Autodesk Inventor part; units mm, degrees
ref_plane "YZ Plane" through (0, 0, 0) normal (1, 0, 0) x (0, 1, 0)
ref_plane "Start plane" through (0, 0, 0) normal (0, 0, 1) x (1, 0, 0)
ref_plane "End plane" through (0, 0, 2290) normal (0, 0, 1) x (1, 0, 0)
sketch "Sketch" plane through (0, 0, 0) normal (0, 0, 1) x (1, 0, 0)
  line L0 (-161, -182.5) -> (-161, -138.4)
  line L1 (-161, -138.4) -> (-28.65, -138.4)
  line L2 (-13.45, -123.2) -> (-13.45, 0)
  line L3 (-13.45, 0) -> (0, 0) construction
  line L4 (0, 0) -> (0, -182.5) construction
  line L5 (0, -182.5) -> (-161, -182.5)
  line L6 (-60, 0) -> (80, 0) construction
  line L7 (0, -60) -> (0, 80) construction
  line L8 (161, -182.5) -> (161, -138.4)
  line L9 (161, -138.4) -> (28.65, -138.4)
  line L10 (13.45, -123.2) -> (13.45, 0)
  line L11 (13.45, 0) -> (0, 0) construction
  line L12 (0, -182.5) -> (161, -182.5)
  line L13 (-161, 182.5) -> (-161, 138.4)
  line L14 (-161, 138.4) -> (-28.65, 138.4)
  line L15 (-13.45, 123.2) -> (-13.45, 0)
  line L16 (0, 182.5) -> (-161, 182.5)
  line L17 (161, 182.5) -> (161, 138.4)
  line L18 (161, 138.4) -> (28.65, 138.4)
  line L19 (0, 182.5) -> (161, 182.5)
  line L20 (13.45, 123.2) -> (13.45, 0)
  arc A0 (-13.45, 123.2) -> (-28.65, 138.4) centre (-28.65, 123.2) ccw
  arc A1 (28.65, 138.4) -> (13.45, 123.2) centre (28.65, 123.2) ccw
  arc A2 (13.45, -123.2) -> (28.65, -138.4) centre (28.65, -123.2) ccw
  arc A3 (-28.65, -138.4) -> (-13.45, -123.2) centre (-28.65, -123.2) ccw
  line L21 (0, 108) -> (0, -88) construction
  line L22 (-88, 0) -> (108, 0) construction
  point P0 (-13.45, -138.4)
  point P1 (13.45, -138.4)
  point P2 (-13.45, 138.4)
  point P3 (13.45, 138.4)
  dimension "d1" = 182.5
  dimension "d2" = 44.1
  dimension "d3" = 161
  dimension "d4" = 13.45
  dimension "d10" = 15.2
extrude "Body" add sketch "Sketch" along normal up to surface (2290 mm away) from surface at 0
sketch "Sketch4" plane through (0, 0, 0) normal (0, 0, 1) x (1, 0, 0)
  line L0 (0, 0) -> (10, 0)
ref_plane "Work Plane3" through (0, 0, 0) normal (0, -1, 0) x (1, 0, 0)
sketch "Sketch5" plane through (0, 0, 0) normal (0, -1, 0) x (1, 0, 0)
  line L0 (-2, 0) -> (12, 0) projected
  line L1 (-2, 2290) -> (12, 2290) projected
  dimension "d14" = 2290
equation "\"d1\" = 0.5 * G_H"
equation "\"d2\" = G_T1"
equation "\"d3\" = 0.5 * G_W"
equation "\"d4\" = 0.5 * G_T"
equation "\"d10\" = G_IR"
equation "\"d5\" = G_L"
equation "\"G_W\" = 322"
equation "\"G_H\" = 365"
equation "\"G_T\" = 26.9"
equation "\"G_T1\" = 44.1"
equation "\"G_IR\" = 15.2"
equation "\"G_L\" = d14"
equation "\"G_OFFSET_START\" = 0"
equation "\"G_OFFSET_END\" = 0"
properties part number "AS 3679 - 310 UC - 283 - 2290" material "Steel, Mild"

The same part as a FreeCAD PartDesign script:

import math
import FreeCAD as App
import Part
import Sketcher

V = App.Vector
Q = App.Units.Quantity

doc = App.newDocument("Part")
body = doc.addObject("PartDesign::Body", "Body")

# Sketch on XY plane
sketch1 = body.newObject("Sketcher::SketchObject", "Sketch")
sketch1.AttachmentSupport = (doc.getObject("XY_Plane"), [""])
sketch1.MapMode = "FlatFace"
sketch1.addGeometry(Part.LineSegment(V(-161, -138, 0), V(-161, -182, 0)), False)
sketch1.addGeometry(Part.LineSegment(V(-161, -182, 0), V(161, -182, 0)), False)
sketch1.addGeometry(Part.LineSegment(V(161, -182, 0), V(161, -138, 0)), False)
sketch1.addGeometry(Part.LineSegment(V(161, -138, 0), V(29, -138, 0)), False)
sketch1.addGeometry(Part.ArcOfCircle(Part.Circle(V(29, -123, 0), V(0, 0, 1), 15), math.radians(180), math.radians(270)), False)
sketch1.addGeometry(Part.LineSegment(V(13, -123, 0), V(13, 123, 0)), False)
sketch1.addGeometry(Part.ArcOfCircle(Part.Circle(V(29, 123, 0), V(0, 0, 1), 15), math.radians(90), math.radians(180)), False)
sketch1.addGeometry(Part.LineSegment(V(29, 138, 0), V(161, 138, 0)), False)
sketch1.addGeometry(Part.LineSegment(V(161, 138, 0), V(161, 182, 0)), False)
sketch1.addGeometry(Part.LineSegment(V(161, 182, 0), V(-161, 182, 0)), False)
sketch1.addGeometry(Part.LineSegment(V(-161, 182, 0), V(-161, 138, 0)), False)
sketch1.addGeometry(Part.LineSegment(V(-161, 138, 0), V(-29, 138, 0)), False)
sketch1.addGeometry(Part.ArcOfCircle(Part.Circle(V(-29, 123, 0), V(0, 0, 1), 15), math.radians(0), math.radians(90)), False)
sketch1.addGeometry(Part.LineSegment(V(-13, 123, 0), V(-13, -123, 0)), False)
sketch1.addGeometry(Part.ArcOfCircle(Part.Circle(V(-29, -123, 0), V(0, 0, 1), 15), math.radians(-90), math.radians(0)), False)
sketch1.addGeometry(Part.LineSegment(V(-29, -138, 0), V(-161, -138, 0)), False)
sketch1.addConstraint(Sketcher.Constraint("Coincident", 0, 2, 1, 1))
sketch1.addConstraint(Sketcher.Constraint("Coincident", 1, 2, 2, 1))
sketch1.addConstraint(Sketcher.Constraint("Coincident", 2, 2, 3, 1))
sketch1.addConstraint(Sketcher.Constraint("Tangent", 3, 2, 4, 2))
sketch1.addConstraint(Sketcher.Constraint("Tangent", 4, 1, 5, 1))
sketch1.addConstraint(Sketcher.Constraint("Tangent", 5, 2, 6, 2))
sketch1.addConstraint(Sketcher.Constraint("Tangent", 6, 1, 7, 1))
sketch1.addConstraint(Sketcher.Constraint("Coincident", 7, 2, 8, 1))
sketch1.addConstraint(Sketcher.Constraint("Coincident", 8, 2, 9, 1))
sketch1.addConstraint(Sketcher.Constraint("Coincident", 9, 2, 10, 1))
sketch1.addConstraint(Sketcher.Constraint("Coincident", 10, 2, 11, 1))
sketch1.addConstraint(Sketcher.Constraint("Tangent", 11, 2, 12, 2))
sketch1.addConstraint(Sketcher.Constraint("Tangent", 12, 1, 13, 1))
sketch1.addConstraint(Sketcher.Constraint("Tangent", 13, 2, 14, 2))
sketch1.addConstraint(Sketcher.Constraint("Tangent", 14, 1, 15, 1))
sketch1.addConstraint(Sketcher.Constraint("Coincident", 15, 2, 0, 1))
sketch1.addConstraint(Sketcher.Constraint("Vertical", 0))
sketch1.addConstraint(Sketcher.Constraint("Horizontal", 1))
sketch1.addConstraint(Sketcher.Constraint("Vertical", 2))
sketch1.addConstraint(Sketcher.Constraint("Horizontal", 3))
sketch1.addConstraint(Sketcher.Constraint("Vertical", 5))
sketch1.addConstraint(Sketcher.Constraint("Horizontal", 7))
sketch1.addConstraint(Sketcher.Constraint("Vertical", 8))
sketch1.addConstraint(Sketcher.Constraint("Horizontal", 9))
sketch1.addConstraint(Sketcher.Constraint("Vertical", 10))
sketch1.addConstraint(Sketcher.Constraint("Horizontal", 11))
sketch1.addConstraint(Sketcher.Constraint("Vertical", 13))
sketch1.addConstraint(Sketcher.Constraint("Horizontal", 15))
sketch1.addConstraint(Sketcher.Constraint("Equal", 4, 6))
sketch1.addConstraint(Sketcher.Constraint("Equal", 6, 12))
sketch1.addConstraint(Sketcher.Constraint("Equal", 12, 14))
sketch1.addConstraint(Sketcher.Constraint("Symmetric", 4, 3, 12, 3, -1, 1))
sketch1.addConstraint(Sketcher.Constraint("Symmetric", 0, 2, 8, 2, -1, 1))
sketch1.addConstraint(Sketcher.Constraint("Symmetric", 7, 2, 10, 2, -2))
sketch1.addConstraint(Sketcher.Constraint("Symmetric", 2, 2, 15, 2, -2))
sketch1.addConstraint(Sketcher.Constraint("Radius", 4, Q("15.2 mm")))
sketch1.addConstraint(Sketcher.Constraint("DistanceY", 0, 2, 0, 1, Q("44.1 mm")))
sketch1.addConstraint(Sketcher.Constraint("DistanceX", 0, 2, -1, 1, Q("161 mm")))
sketch1.addConstraint(Sketcher.Constraint("DistanceY", 0, 2, -1, 1, Q("182.5 mm")))
sketch1.addConstraint(Sketcher.Constraint("DistanceX", -1, 1, 4, 1, Q("13.45 mm")))
pad1 = body.newObject("PartDesign::Pad", "Pad")
pad1.Profile = sketch1
pad1.Length = 2290

doc.recompute()
